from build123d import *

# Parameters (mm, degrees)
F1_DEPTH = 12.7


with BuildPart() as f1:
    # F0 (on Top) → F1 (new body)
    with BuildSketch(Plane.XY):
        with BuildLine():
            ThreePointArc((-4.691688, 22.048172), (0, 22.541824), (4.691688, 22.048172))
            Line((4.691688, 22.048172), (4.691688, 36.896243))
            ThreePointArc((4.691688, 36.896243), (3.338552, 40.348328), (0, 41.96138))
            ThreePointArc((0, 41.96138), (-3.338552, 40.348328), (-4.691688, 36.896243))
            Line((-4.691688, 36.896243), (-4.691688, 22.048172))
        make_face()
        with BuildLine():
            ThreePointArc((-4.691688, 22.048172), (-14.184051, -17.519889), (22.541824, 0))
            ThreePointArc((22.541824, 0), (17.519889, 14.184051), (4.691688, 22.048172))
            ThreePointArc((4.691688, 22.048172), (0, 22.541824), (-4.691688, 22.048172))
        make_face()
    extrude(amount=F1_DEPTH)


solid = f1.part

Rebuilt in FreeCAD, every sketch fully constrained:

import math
import FreeCAD as App
import Part
import Sketcher
Q = App.Units.Quantity

doc = App.newDocument("Part")
body = doc.addObject("PartDesign::Body", "Body")

# Sketch on XY plane
sketch1 = doc.addObject("Sketcher::SketchObject", "Sketch")
body.addObject(sketch1)
sketch1.AttachmentSupport = (doc.XY_Plane, [""])
sketch1.MapMode = "FlatFace"
sketch1.addGeometry(Part.LineSegment(App.Vector(4.691688, 22.048172, 0), App.Vector(4.691688, 36.896243, 0)), False)
sketch1.addGeometry(Part.ArcOfCircle(Part.Circle(App.Vector(-0.38831, 36.896245, 0), App.Vector(0, 0, 1), 5.079998), math.radians(-0.000018), math.radians(85.61609)), False)
sketch1.addGeometry(Part.ArcOfCircle(Part.Circle(App.Vector(0.38831, 36.896245, 0), App.Vector(0, 0, 1), 5.079998), math.radians(94.38391), math.radians(180.000018)), False)
sketch1.addGeometry(Part.LineSegment(App.Vector(-4.691688, 36.896243, 0), App.Vector(-4.691688, 22.048172, 0)), False)
sketch1.addGeometry(Part.ArcOfCircle(Part.Circle(App.Vector(0, 0, 0), App.Vector(0, 0, 1), 22.541824), math.radians(102.01294), math.radians(360)), False)
sketch1.addGeometry(Part.ArcOfCircle(Part.Circle(App.Vector(-0.000001, -0.000001, 0), App.Vector(0, 0, 1), 22.541825), math.radians(0.000002), math.radians(77.987059)), False)
sketch1.addConstraint(Sketcher.Constraint("Tangent", 0, 2, 1, 1))
sketch1.addConstraint(Sketcher.Constraint("Coincident", 1, 2, 2, 1))
sketch1.addConstraint(Sketcher.Constraint("Tangent", 2, 2, 3, 1))
sketch1.addConstraint(Sketcher.Constraint("Coincident", 3, 2, 4, 1))
sketch1.addConstraint(Sketcher.Constraint("Tangent", 4, 2, 5, 1))
sketch1.addConstraint(Sketcher.Constraint("Coincident", 5, 2, 0, 1))
sketch1.addConstraint(Sketcher.Constraint("Vertical", 0))
sketch1.addConstraint(Sketcher.Constraint("Vertical", 3))
sketch1.addConstraint(Sketcher.Constraint("Coincident", 4, 3, -1, 1))
sketch1.addConstraint(Sketcher.Constraint("Equal", 1, 2))
sketch1.addConstraint(Sketcher.Constraint("Equal", 4, 5))
sketch1.addConstraint(Sketcher.Constraint("Symmetric", 1, 3, 2, 3, -2))
sketch1.addConstraint(Sketcher.Constraint("PointOnObject", 4, 2, -1))
sketch1.addConstraint(Sketcher.Constraint("Radius", 1, Q("0.1999999 in")))
sketch1.addConstraint(Sketcher.Constraint("Radius", 4, 22.541824))
sketch1.addConstraint(Sketcher.Constraint("DistanceY", 0, 1, 0, 2, 14.848071))
sketch1.addConstraint(Sketcher.Constraint("DistanceX", 1, 3, -1, 1, 0.38831))
pad1 = doc.addObject("PartDesign::Pad", "Pad")
body.addObject(pad1)
pad1.Profile = sketch1
pad1.Length = Q("0.5 in")

doc.recompute()
